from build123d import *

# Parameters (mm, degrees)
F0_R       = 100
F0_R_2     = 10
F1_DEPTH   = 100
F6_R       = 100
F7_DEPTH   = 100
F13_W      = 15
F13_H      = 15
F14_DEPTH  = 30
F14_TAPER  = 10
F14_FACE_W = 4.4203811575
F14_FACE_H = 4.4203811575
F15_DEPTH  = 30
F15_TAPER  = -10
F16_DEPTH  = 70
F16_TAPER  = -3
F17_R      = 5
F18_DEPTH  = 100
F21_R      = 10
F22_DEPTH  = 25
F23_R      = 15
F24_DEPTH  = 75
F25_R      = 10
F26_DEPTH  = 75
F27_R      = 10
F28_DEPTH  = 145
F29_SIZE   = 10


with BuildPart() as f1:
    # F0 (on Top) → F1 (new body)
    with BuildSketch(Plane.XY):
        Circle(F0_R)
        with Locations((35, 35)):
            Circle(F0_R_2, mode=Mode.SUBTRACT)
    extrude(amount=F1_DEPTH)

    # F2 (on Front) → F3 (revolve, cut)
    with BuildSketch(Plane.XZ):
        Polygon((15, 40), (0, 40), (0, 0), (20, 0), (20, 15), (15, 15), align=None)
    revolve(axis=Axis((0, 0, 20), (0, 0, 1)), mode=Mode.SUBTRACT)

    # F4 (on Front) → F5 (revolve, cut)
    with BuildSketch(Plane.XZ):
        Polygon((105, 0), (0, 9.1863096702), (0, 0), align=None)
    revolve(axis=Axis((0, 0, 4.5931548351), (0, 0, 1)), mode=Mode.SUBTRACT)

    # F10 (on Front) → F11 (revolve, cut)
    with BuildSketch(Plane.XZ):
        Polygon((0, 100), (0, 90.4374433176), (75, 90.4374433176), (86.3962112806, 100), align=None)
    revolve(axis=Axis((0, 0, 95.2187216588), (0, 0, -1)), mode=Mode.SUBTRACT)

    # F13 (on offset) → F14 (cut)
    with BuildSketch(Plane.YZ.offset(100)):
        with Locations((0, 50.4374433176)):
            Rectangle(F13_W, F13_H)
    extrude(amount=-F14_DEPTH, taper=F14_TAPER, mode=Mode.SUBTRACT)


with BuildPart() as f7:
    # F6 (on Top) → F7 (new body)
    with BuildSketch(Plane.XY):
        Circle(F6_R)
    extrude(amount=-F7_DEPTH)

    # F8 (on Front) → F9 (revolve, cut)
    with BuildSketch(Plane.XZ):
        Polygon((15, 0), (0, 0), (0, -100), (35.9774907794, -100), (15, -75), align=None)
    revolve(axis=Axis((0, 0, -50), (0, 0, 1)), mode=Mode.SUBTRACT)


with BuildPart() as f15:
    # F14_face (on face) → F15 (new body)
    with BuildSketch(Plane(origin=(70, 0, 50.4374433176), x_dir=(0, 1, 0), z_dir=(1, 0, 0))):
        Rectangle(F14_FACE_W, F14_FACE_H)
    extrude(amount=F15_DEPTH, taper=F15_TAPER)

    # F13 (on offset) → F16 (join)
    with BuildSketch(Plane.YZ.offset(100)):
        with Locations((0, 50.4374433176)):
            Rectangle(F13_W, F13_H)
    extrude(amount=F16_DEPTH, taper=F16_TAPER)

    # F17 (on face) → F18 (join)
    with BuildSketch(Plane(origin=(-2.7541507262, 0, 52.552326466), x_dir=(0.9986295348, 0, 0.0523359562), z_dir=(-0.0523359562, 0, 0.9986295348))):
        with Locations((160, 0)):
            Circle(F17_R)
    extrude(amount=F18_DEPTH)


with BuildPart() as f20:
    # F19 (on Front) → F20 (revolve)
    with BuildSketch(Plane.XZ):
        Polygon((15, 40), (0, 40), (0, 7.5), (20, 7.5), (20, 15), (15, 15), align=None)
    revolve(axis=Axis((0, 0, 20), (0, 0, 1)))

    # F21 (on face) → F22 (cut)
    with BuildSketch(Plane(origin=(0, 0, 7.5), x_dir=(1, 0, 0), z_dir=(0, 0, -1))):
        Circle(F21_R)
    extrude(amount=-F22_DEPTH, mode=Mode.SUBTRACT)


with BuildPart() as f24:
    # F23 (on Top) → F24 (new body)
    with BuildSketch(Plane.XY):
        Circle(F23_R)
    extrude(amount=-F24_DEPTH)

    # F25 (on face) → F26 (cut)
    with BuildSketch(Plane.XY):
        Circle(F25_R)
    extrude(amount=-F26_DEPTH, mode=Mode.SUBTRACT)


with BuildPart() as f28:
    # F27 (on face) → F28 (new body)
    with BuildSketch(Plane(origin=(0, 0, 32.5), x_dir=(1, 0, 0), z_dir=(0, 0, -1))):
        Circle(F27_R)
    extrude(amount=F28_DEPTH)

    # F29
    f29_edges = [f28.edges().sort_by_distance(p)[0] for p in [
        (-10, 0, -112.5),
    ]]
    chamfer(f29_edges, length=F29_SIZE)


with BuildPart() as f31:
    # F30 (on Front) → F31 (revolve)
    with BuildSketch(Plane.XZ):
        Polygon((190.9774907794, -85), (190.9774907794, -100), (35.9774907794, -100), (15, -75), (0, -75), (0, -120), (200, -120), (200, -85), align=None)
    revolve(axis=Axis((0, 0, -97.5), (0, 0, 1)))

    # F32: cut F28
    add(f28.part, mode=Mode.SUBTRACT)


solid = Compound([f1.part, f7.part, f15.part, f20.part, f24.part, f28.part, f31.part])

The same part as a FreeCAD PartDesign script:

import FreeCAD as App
import Part
import Sketcher

V = App.Vector
Q = App.Units.Quantity


def edges_at(feature, points):
    """Names of the edges that pass closest to the given points."""
    edges = feature.Shape.Edges
    near = lambda p: min(range(len(edges)), key=lambda i: edges[i].distToShape(Part.Vertex(*p))[0])
    return sorted({f"Edge{near(p) + 1}" for p in points})


def add_polygon(sketch, points):
    """Adds a closed chain of lines whose ends are joined by coincident constraints."""
    first, n = sketch.GeometryCount, len(points)
    for a, b in zip(points, points[1:] + points[:1]):
        sketch.addGeometry(Part.LineSegment(App.Vector(*a, 0), App.Vector(*b, 0)), False)
    for i in range(n):
        sketch.addConstraint(Sketcher.Constraint("Coincident", first + i, 2, first + (i + 1) % n, 1))

doc = App.newDocument("Part")
body = doc.addObject("PartDesign::Body", "Body")

# Sketch on XY plane
sketch1 = doc.addObject("Sketcher::SketchObject", "Sketch")
body.addObject(sketch1)
sketch1.AttachmentSupport = (doc.XY_Plane, [""])
sketch1.MapMode = "FlatFace"
sketch1.addGeometry([
    Part.Circle(V(0, 0, 0), V(0, 0, 1), 100),
    Part.Circle(V(35, 35, 0), V(0, 0, 1), 10),
], False)
sketch1.addConstraint([
    Sketcher.Constraint("Coincident", 0, 3, -1, 1),
    Sketcher.Constraint("Diameter", 0, Q("200 mm")),
    Sketcher.Constraint("Diameter", 1, Q("20 mm")),
    Sketcher.Constraint("DistanceX", -1, 1, 1, 3, Q("35 mm")),
    Sketcher.Constraint("DistanceY", -1, 1, 1, 3, Q("35 mm")),
])
pad1 = doc.addObject("PartDesign::Pad", "Pad")
body.addObject(pad1)
pad1.Profile = sketch1
pad1.Length = 100

# Sketch on XZ plane
sketch2 = doc.addObject("Sketcher::SketchObject", "Sketch001")
body.addObject(sketch2)
sketch2.AttachmentSupport = (doc.XZ_Plane, [""])
sketch2.MapMode = "FlatFace"
add_polygon(sketch2, [(15, 40), (0, 40), (0, 0), (20, 0), (20, 15), (15, 15)])  # lines 0-5
sketch2.addConstraint([
    Sketcher.Constraint("Horizontal", 0),
    Sketcher.Constraint("Vertical", 1),
    Sketcher.Constraint("Horizontal", 2),
    Sketcher.Constraint("Vertical", 3),
    Sketcher.Constraint("Horizontal", 4),
    Sketcher.Constraint("Vertical", 5),
    Sketcher.Constraint("Coincident", 1, 2, -1, 1),
    Sketcher.Constraint("Equal", 0, 3),
    Sketcher.Constraint("DistanceX", 0, 2, 0, 1, Q("15 mm")),
    Sketcher.Constraint("DistanceX", 2, 1, 2, 2, Q("20 mm")),
    Sketcher.Constraint("DistanceY", 1, 2, 1, 1, Q("40 mm")),
])
groove = doc.addObject("PartDesign::Groove", "Groove")
body.addObject(groove)
groove.Profile = sketch2
groove.ReferenceAxis = (sketch2, ["V_Axis"])
groove.Angle = 360

# Sketch on XZ plane
sketch3 = doc.addObject("Sketcher::SketchObject", "Sketch002")
body.addObject(sketch3)
sketch3.AttachmentSupport = (doc.XZ_Plane, [""])
sketch3.MapMode = "FlatFace"
add_polygon(sketch3, [(105, 0), (0, 9), (0, 0)])  # lines 0-2
sketch3.addConstraint([
    Sketcher.Constraint("Vertical", 1),
    Sketcher.Constraint("Horizontal", 2),
    Sketcher.Constraint("Coincident", 1, 2, -1, 1),
    Sketcher.Constraint("DistanceX", 2, 1, 2, 2, Q("105 mm")),
    Sketcher.Constraint("Angle", 0, Q("175 deg")),
])
groove2 = doc.addObject("PartDesign::Groove", "Groove001")
body.addObject(groove2)
groove2.Profile = sketch3
groove2.ReferenceAxis = (sketch3, ["V_Axis"])
groove2.Angle = 360

# Sketch on XZ plane
sketch4 = doc.addObject("Sketcher::SketchObject", "Sketch003")
body.addObject(sketch4)
sketch4.AttachmentSupport = (doc.XZ_Plane, [""])
sketch4.MapMode = "FlatFace"
add_polygon(sketch4, [(0, 100), (0, 90), (75, 90), (86, 100)])  # lines 0-3
sketch4.addConstraint([
    Sketcher.Constraint("Vertical", 0),
    Sketcher.Constraint("Horizontal", 1),
    Sketcher.Constraint("Horizontal", 3),
    Sketcher.Constraint("PointOnObject", 0, 2, -2),
    Sketcher.Constraint("DistanceX", 1, 1, 1, 2, Q("75 mm")),
    Sketcher.Constraint("Angle", 2, Q("40 deg")),
    Sketcher.Constraint("DistanceY", -1, 1, 2, 2, Q("100 mm")),
    Sketcher.Constraint("DistanceX", 3, 2, 3, 1, Q("86.396211 mm")),
])
groove3 = doc.addObject("PartDesign::Groove", "Groove002")
body.addObject(groove3)
groove3.Profile = sketch4
groove3.ReferenceAxis = (sketch4, ["V_Axis"])
groove3.Angle = 360

# Sketch on YZ plane
sketch5 = doc.addObject("Sketcher::SketchObject", "Sketch004")
body.addObject(sketch5)
sketch5.AttachmentSupport = (doc.YZ_Plane, [""])
sketch5.MapMode = "FlatFace"
sketch5.AttachmentOffset = App.Placement(V(0, 0, 100), App.Rotation())
add_polygon(sketch5, [(-8, 58), (-8, 43), (8, 43), (8, 58)])  # lines 0-3
sketch5.addConstraint([
    Sketcher.Constraint("Vertical", 0),
    Sketcher.Constraint("Horizontal", 1),
    Sketcher.Constraint("Vertical", 2),
    Sketcher.Constraint("Horizontal", 3),
    Sketcher.Constraint("Equal", 3, 0),
    Sketcher.Constraint("DistanceX", 1, 1, 1, 2, Q("15 mm")),
    Sketcher.Constraint("DistanceX", 0, 2, -1, 1, Q("7.5 mm")),
    Sketcher.Constraint("DistanceY", -1, 1, 0, 2, Q("42.937443 mm")),
])
pocket1 = doc.addObject("PartDesign::Pocket", "Pocket")
body.addObject(pocket1)
pocket1.Profile = sketch5
pocket1.Length = 30
pocket1.TaperAngle = -10
body2 = doc.addObject("PartDesign::Body", "Body001")

# Sketch on XY plane
sketch6 = doc.addObject("Sketcher::SketchObject", "Sketch005")
body2.addObject(sketch6)
sketch6.AttachmentSupport = (doc.getObject("XY_Plane001"), [""])
sketch6.MapMode = "FlatFace"
sketch6.addGeometry(Part.Circle(V(0, 0, 0), V(0, 0, 1), 100), False)
sketch6.addConstraint([
    Sketcher.Constraint("Coincident", 0, 3, -1, 1),
    Sketcher.Constraint("Diameter", 0, Q("200 mm")),
])
pad2 = doc.addObject("PartDesign::Pad", "Pad001")
body2.addObject(pad2)
pad2.Profile = sketch6
pad2.Length = 100
pad2.Reversed = True

# Sketch on XZ plane
sketch7 = doc.addObject("Sketcher::SketchObject", "Sketch006")
body2.addObject(sketch7)
sketch7.AttachmentSupport = (doc.getObject("XZ_Plane001"), [""])
sketch7.MapMode = "FlatFace"
add_polygon(sketch7, [(15, 0), (0, 0), (0, -100), (36, -100), (15, -75)])  # lines 0-4
sketch7.addConstraint([
    Sketcher.Constraint("Horizontal", 0),
    Sketcher.Constraint("Vertical", 1),
    Sketcher.Constraint("Horizontal", 2),
    Sketcher.Constraint("Vertical", 4),
    Sketcher.Constraint("Coincident", 0, 2, -1, 1),
    Sketcher.Constraint("DistanceX", 0, 2, 0, 1, Q("15 mm")),
    Sketcher.Constraint("DistanceY", 1, 2, 1, 1, Q("100 mm")),
    Sketcher.Constraint("DistanceY", 4, 1, 4, 2, Q("75 mm")),
    Sketcher.Constraint("Angle", 3, Q("130 deg")),
])
groove4 = doc.addObject("PartDesign::Groove", "Groove003")
body2.addObject(groove4)
groove4.Profile = sketch7
groove4.ReferenceAxis = (sketch7, ["V_Axis"])
groove4.Angle = 360
body3 = doc.addObject("PartDesign::Body", "Body002")

# Sketch on YZ plane
sketch8 = doc.addObject("Sketcher::SketchObject", "Sketch007")
body3.addObject(sketch8)
sketch8.AttachmentSupport = (doc.getObject("YZ_Plane002"), [""])
sketch8.MapMode = "FlatFace"
sketch8.AttachmentOffset = App.Placement(V(0, 0, 70), App.Rotation())
add_polygon(sketch8, [(-2.2, 52.6), (-2.2, 48.2), (2.2, 48.2), (2.2, 52.6)])  # lines 0-3
sketch8.addConstraint([
    Sketcher.Constraint("Vertical", 0),
    Sketcher.Constraint("Horizontal", 1),
    Sketcher.Constraint("Vertical", 2),
    Sketcher.Constraint("Horizontal", 3),
    Sketcher.Constraint("Equal", 3, 0),
    Sketcher.Constraint("DistanceX", 1, 1, 1, 2, Q("4.420381 mm")),
    Sketcher.Constraint("DistanceX", 0, 2, -1, 1, Q("2.210191 mm")),
    Sketcher.Constraint("DistanceY", -1, 1, 0, 2, Q("48.227253 mm")),
])
pad3 = doc.addObject("PartDesign::Pad", "Pad002")
body3.addObject(pad3)
pad3.Profile = sketch8
pad3.Length = 30
pad3.TaperAngle = 10

# Sketch on YZ plane
sketch9 = doc.addObject("Sketcher::SketchObject", "Sketch008")
body3.addObject(sketch9)
sketch9.AttachmentSupport = (doc.getObject("YZ_Plane002"), [""])
sketch9.MapMode = "FlatFace"
sketch9.AttachmentOffset = App.Placement(V(0, 0, 100), App.Rotation())
add_polygon(sketch9, [(-8, 58), (-8, 43), (8, 43), (8, 58)])  # lines 0-3
sketch9.addConstraint([
    Sketcher.Constraint("Vertical", 0),
    Sketcher.Constraint("Horizontal", 1),
    Sketcher.Constraint("Vertical", 2),
    Sketcher.Constraint("Horizontal", 3),
    Sketcher.Constraint("Equal", 3, 0),
    Sketcher.Constraint("DistanceX", 1, 1, 1, 2, Q("15 mm")),
    Sketcher.Constraint("DistanceX", 0, 2, -1, 1, Q("7.5 mm")),
    Sketcher.Constraint("DistanceY", -1, 1, 0, 2, Q("42.937443 mm")),
])
pad4 = doc.addObject("PartDesign::Pad", "Pad003")
body3.addObject(pad4)
pad4.Profile = sketch9
pad4.Length = 70
pad4.TaperAngle = 3

# Sketch on an angled plane
sketch10 = doc.addObject("Sketcher::SketchObject", "Sketch009")
body3.addObject(sketch10)
sketch10.Placement = App.Placement(V(-2.754151, 0, 52.552326), App.Rotation(V(0.998629535, 0, 0.052335956), V(0, 1, 0), V(-0.052335956, 0, 0.998629535), "ZXY"))
sketch10.addGeometry(Part.Circle(V(160, 0, 0), V(0, 0, 1), 5), False)
sketch10.addConstraint([
    Sketcher.Constraint("PointOnObject", 0, 3, -1),
    Sketcher.Constraint("Diameter", 0, Q("10 mm")),
    Sketcher.Constraint("DistanceX", -1, 1, 0, 3, Q("160 mm")),
])
pad5 = doc.addObject("PartDesign::Pad", "Pad004")
body3.addObject(pad5)
pad5.Profile = sketch10
pad5.Length = 100
body4 = doc.addObject("PartDesign::Body", "Body003")

# Sketch on XZ plane
sketch11 = doc.addObject("Sketcher::SketchObject", "Sketch010")
body4.addObject(sketch11)
sketch11.AttachmentSupport = (doc.getObject("XZ_Plane003"), [""])
sketch11.MapMode = "FlatFace"
add_polygon(sketch11, [(15, 40), (0, 40), (0, 8), (20, 8), (20, 15), (15, 15)])  # lines 0-5
sketch11.addConstraint([
    Sketcher.Constraint("Horizontal", 0),
    Sketcher.Constraint("Vertical", 1),
    Sketcher.Constraint("Horizontal", 2),
    Sketcher.Constraint("Vertical", 3),
    Sketcher.Constraint("Horizontal", 4),
    Sketcher.Constraint("Vertical", 5),
    Sketcher.Constraint("PointOnObject", 0, 2, -2),
    Sketcher.Constraint("DistanceX", 0, 2, 0, 1, Q("15 mm")),
    Sketcher.Constraint("DistanceX", 2, 1, 2, 2, Q("20 mm")),
    Sketcher.Constraint("DistanceY", 5, 1, 5, 2, Q("25 mm")),
    Sketcher.Constraint("DistanceY", 1, 2, 1, 1, Q("32.5 mm")),
    Sketcher.Constraint("DistanceY", -1, 1, 0, 2, Q("40 mm")),
])
revolution = doc.addObject("PartDesign::Revolution", "Revolution")
body4.addObject(revolution)
revolution.Profile = sketch11
revolution.ReferenceAxis = (sketch11, ["V_Axis"])
revolution.Angle = 360

# Sketch on XY plane
sketch12 = doc.addObject("Sketcher::SketchObject", "Sketch011")
body4.addObject(sketch12)
sketch12.AttachmentSupport = (doc.getObject("XY_Plane003"), [""])
sketch12.MapMode = "FlatFace"
sketch12.AttachmentOffset = App.Placement(V(0, 0, 7.5), App.Rotation())
sketch12.addGeometry(Part.Circle(V(0, 0, 0), V(0, 0, 1), 10), False)
sketch12.addConstraint([
    Sketcher.Constraint("Coincident", 0, 3, -1, 1),
    Sketcher.Constraint("Diameter", 0, Q("20 mm")),
])
pocket2 = doc.addObject("PartDesign::Pocket", "Pocket001")
body4.addObject(pocket2)
pocket2.Profile = sketch12
pocket2.Length = 25
pocket2.Reversed = True
body5 = doc.addObject("PartDesign::Body", "Body004")

# Sketch on XY plane
sketch13 = doc.addObject("Sketcher::SketchObject", "Sketch012")
body5.addObject(sketch13)
sketch13.AttachmentSupport = (doc.getObject("XY_Plane004"), [""])
sketch13.MapMode = "FlatFace"
sketch13.addGeometry(Part.Circle(V(0, 0, 0), V(0, 0, 1), 15), False)
sketch13.addConstraint([
    Sketcher.Constraint("Coincident", 0, 3, -1, 1),
    Sketcher.Constraint("Diameter", 0, Q("30 mm")),
])
pad6 = doc.addObject("PartDesign::Pad", "Pad005")
body5.addObject(pad6)
pad6.Profile = sketch13
pad6.Length = 75
pad6.Reversed = True

# Sketch on XY plane
sketch14 = doc.addObject("Sketcher::SketchObject", "Sketch013")
body5.addObject(sketch14)
sketch14.AttachmentSupport = (doc.getObject("XY_Plane004"), [""])
sketch14.MapMode = "FlatFace"
sketch14.addGeometry(Part.Circle(V(0, 0, 0), V(0, 0, 1), 10), False)
sketch14.addConstraint([
    Sketcher.Constraint("Coincident", 0, 3, -1, 1),
    Sketcher.Constraint("Diameter", 0, Q("20 mm")),
])
pocket3 = doc.addObject("PartDesign::Pocket", "Pocket002")
body5.addObject(pocket3)
pocket3.Profile = sketch14
pocket3.Length = 75
body6 = doc.addObject("PartDesign::Body", "Body005")

# Sketch on XY plane
sketch15 = doc.addObject("Sketcher::SketchObject", "Sketch014")
body6.addObject(sketch15)
sketch15.AttachmentSupport = (doc.getObject("XY_Plane005"), [""])
sketch15.MapMode = "FlatFace"
sketch15.AttachmentOffset = App.Placement(V(0, 0, 32.5), App.Rotation())
sketch15.addGeometry(Part.Circle(V(0, 0, 0), V(0, 0, 1), 10), False)
sketch15.addConstraint([
    Sketcher.Constraint("Coincident", 0, 3, -1, 1),
    Sketcher.Constraint("Diameter", 0, Q("20 mm")),
])
pad7 = doc.addObject("PartDesign::Pad", "Pad006")
body6.addObject(pad7)
pad7.Profile = sketch15
pad7.Length = 145
pad7.Reversed = True
doc.recompute()

chamfer = doc.addObject("PartDesign::Chamfer", "Chamfer")
body6.addObject(chamfer)
chamfer.Base = (pad7, edges_at(pad7, [(-10, 0, -112.5)]))
chamfer.Size = 10
body7 = doc.addObject("PartDesign::Body", "Body006")

# Sketch on XZ plane
sketch16 = doc.addObject("Sketcher::SketchObject", "Sketch015")
body7.addObject(sketch16)
sketch16.AttachmentSupport = (doc.getObject("XZ_Plane006"), [""])
sketch16.MapMode = "FlatFace"
add_polygon(sketch16, [(191, -85), (191, -100), (36, -100), (15, -75), (0, -75), (0, -120), (200, -120), (200, -85)])  # lines 0-7
sketch16.addConstraint([
    Sketcher.Constraint("Vertical", 0),
    Sketcher.Constraint("Horizontal", 1),
    Sketcher.Constraint("Horizontal", 3),
    Sketcher.Constraint("Vertical", 4),
    Sketcher.Constraint("Horizontal", 5),
    Sketcher.Constraint("Vertical", 6),
    Sketcher.Constraint("Horizontal", 7),
    Sketcher.Constraint("PointOnObject", 3, 2, -2),
    Sketcher.Constraint("Equal", 3, 0),
    Sketcher.Constraint("DistanceX", 1, 2, 1, 1, Q("155 mm")),
    Sketcher.Constraint("DistanceX", 3, 2, 3, 1, Q("15 mm")),
    Sketcher.Constraint("DistanceX", 5, 1, 5, 2, Q("200 mm")),
    Sketcher.Constraint("DistanceY", 4, 2, 4, 1, Q("45 mm")),
    Sketcher.Constraint("DistanceY", 6, 1, 6, 2, Q("35 mm")),
    Sketcher.Constraint("Angle", 2, Q("130 deg")),
    Sketcher.Constraint("DistanceY", 0, 2, -1, 1, Q("100 mm")),
])
revolution2 = doc.addObject("PartDesign::Revolution", "Revolution001")
body7.addObject(revolution2)
revolution2.Profile = sketch16
revolution2.ReferenceAxis = (sketch16, ["V_Axis"])
revolution2.Angle = 360
doc.recompute()

body8 = doc.addObject("PartDesign::Body", "Body007")
body8.BaseFeature = body6
boolean = doc.addObject("PartDesign::Boolean", "Boolean")
body7.addObject(boolean)
boolean.Type = "Cut"
boolean.addObjects([body8])
doc.recompute()

doc.recompute()
